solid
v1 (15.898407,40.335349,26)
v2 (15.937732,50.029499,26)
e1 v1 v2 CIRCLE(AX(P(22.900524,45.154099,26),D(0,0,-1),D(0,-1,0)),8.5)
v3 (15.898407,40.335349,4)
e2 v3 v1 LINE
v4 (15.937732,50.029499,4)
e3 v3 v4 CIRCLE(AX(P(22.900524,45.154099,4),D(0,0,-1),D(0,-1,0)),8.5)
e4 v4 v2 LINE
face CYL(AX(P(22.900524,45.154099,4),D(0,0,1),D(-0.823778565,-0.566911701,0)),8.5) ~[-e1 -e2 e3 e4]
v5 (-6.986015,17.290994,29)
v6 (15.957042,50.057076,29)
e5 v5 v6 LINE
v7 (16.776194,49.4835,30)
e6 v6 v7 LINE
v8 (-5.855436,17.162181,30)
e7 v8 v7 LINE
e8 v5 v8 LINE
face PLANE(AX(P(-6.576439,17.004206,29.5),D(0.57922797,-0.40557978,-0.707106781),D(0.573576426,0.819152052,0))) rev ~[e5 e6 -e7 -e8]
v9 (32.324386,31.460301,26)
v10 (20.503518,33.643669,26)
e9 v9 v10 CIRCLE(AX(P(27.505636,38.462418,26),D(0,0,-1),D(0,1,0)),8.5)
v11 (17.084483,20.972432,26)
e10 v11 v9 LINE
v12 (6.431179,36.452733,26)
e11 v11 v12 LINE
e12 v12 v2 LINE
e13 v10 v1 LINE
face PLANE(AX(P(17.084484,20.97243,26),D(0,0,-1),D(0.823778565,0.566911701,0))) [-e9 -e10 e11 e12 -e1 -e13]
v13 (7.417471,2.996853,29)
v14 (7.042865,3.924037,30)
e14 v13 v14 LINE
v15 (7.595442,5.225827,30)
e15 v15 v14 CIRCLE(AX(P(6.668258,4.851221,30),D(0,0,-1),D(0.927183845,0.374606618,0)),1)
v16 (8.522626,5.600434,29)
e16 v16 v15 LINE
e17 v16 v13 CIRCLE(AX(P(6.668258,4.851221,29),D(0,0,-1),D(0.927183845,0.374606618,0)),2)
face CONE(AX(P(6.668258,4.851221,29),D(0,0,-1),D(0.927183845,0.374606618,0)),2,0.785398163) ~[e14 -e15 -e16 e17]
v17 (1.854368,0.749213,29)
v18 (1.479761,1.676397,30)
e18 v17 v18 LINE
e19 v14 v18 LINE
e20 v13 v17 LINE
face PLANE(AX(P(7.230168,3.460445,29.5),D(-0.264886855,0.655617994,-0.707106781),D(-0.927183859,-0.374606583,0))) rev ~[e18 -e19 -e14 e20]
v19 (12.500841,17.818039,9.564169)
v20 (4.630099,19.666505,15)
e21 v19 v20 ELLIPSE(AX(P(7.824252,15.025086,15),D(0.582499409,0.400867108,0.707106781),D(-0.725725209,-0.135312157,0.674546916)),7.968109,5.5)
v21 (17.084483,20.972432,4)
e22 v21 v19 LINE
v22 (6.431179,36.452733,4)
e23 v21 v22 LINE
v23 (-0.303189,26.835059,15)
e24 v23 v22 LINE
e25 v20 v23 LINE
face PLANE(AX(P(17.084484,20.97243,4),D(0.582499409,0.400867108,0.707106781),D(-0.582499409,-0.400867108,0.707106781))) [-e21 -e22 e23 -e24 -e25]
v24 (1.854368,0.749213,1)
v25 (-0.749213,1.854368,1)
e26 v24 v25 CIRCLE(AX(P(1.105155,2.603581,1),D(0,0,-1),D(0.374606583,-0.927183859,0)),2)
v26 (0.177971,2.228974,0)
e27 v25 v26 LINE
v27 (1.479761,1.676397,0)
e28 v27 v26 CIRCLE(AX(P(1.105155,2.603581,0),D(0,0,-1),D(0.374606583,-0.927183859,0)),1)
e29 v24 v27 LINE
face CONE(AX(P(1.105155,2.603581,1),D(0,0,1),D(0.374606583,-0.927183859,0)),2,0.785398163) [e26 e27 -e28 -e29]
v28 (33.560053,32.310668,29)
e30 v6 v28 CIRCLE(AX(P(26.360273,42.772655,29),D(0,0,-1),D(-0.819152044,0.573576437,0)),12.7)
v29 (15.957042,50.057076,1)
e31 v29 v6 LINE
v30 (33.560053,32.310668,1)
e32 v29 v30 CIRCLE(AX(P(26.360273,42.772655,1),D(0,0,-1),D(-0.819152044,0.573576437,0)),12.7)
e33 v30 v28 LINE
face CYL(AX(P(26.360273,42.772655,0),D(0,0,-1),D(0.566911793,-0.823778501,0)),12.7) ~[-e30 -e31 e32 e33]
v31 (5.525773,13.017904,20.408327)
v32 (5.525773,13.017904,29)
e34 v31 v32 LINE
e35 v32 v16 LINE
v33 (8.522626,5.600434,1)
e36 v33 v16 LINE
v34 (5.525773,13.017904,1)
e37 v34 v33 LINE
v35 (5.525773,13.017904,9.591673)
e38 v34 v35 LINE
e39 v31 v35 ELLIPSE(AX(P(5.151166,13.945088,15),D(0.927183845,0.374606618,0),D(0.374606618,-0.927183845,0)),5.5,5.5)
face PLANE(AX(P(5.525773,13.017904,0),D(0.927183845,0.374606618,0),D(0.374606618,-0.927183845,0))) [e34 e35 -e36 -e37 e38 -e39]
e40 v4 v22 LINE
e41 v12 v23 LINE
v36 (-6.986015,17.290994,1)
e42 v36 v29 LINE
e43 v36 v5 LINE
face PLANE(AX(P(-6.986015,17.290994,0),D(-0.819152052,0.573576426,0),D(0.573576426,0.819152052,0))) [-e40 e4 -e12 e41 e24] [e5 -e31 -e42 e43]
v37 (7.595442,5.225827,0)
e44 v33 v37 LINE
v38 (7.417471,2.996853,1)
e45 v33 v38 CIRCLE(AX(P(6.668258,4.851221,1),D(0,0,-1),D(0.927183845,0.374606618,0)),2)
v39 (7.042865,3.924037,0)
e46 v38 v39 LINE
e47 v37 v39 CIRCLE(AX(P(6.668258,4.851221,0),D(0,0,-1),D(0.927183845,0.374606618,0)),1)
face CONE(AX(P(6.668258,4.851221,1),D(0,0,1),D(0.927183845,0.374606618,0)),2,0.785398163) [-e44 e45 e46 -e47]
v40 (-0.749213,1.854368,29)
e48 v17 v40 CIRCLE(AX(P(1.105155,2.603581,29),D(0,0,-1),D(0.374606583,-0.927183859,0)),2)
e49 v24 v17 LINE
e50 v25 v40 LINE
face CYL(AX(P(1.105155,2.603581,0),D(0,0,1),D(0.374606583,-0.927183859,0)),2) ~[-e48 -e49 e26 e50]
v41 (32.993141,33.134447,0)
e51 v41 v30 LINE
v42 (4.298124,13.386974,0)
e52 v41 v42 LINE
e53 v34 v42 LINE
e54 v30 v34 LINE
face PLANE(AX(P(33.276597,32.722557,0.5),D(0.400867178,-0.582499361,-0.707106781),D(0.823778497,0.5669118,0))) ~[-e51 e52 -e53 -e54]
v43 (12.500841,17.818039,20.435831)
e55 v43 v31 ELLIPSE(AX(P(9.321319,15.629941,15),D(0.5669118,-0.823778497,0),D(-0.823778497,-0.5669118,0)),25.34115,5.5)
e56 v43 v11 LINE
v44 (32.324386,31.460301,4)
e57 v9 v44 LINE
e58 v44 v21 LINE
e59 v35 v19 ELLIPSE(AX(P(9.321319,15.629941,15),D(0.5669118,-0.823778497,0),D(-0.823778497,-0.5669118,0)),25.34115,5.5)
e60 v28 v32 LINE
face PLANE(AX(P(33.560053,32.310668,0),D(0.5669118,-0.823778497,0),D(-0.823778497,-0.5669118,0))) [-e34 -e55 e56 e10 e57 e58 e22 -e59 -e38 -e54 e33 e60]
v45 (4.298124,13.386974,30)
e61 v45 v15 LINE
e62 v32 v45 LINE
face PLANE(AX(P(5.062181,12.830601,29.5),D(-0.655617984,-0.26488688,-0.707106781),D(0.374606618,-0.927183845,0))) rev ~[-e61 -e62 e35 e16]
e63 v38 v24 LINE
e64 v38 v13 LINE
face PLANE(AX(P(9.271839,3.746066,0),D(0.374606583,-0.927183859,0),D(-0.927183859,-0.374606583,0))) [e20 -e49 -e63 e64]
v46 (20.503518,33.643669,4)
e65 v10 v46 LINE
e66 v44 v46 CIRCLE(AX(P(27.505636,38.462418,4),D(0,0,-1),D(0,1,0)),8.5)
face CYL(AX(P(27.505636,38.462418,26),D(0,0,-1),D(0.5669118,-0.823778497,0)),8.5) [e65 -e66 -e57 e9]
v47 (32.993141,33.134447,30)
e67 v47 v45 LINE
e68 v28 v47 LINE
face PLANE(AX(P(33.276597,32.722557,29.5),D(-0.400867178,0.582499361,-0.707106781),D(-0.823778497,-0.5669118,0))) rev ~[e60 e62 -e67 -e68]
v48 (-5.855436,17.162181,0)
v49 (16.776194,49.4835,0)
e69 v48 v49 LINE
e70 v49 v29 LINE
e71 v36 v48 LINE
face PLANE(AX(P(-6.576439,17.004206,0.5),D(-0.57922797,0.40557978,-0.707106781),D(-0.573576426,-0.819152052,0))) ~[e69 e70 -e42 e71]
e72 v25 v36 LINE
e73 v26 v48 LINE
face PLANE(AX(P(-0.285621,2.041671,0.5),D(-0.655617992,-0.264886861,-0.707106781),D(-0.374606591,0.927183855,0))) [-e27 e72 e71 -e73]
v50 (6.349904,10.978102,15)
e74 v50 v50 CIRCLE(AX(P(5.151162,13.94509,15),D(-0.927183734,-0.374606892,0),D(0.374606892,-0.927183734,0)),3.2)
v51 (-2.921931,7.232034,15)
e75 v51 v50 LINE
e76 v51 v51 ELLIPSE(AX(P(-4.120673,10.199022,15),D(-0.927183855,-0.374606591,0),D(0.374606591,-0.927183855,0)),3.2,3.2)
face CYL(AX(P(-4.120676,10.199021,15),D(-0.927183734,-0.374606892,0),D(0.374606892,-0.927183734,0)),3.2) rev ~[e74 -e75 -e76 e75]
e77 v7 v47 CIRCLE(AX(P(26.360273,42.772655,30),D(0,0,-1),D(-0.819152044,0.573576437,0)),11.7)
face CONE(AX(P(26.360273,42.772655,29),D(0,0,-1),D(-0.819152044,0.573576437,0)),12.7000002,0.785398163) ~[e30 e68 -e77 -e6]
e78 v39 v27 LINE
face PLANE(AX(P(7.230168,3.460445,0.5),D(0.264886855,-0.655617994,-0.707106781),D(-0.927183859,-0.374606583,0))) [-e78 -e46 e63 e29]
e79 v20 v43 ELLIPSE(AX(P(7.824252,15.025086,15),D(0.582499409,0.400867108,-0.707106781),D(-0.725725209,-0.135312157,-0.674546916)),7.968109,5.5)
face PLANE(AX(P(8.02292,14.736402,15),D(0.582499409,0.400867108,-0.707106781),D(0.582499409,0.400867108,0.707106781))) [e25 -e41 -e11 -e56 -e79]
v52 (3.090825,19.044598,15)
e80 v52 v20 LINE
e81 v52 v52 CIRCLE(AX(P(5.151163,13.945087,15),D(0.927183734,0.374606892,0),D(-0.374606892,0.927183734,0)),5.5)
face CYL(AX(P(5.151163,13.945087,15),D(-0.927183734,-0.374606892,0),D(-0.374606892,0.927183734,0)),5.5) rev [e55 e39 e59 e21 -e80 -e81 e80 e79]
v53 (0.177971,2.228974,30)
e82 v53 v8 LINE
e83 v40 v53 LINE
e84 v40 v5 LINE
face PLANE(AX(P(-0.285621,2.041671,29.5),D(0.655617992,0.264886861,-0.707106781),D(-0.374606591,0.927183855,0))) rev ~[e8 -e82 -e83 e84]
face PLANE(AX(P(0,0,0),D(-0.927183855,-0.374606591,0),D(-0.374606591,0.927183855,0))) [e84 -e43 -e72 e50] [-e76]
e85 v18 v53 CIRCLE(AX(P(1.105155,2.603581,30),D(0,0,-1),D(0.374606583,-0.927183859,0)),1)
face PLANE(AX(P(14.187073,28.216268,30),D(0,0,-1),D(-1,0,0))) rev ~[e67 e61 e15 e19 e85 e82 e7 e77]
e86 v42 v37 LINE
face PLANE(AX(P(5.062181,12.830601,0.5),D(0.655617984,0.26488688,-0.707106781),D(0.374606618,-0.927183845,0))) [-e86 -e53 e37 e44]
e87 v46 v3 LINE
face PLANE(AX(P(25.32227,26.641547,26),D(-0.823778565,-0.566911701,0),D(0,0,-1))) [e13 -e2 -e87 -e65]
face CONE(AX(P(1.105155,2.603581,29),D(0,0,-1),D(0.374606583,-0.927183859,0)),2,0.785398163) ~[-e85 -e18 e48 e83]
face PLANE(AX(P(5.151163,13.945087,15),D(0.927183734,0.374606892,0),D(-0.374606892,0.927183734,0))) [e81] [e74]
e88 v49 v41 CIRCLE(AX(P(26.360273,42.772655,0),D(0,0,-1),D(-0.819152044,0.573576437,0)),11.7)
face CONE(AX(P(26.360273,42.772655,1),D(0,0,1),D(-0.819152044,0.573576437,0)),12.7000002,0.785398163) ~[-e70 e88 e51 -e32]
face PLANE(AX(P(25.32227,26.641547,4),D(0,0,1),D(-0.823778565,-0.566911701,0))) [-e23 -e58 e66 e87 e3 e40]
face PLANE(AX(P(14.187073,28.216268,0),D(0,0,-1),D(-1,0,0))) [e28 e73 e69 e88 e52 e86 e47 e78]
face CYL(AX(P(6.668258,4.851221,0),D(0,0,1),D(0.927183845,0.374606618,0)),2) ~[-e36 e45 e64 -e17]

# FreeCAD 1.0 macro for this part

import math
import FreeCAD as App
import Part
import Sketcher
from FreeCAD import Vector
Q = App.Units.Quantity


def edges_at(feature, points):
    """Names of the edges that pass closest to the given points."""
    edges = feature.Shape.Edges
    near = lambda p: min(range(len(edges)), key=lambda i: edges[i].distToShape(Part.Vertex(*p))[0])
    return sorted({f"Edge{near(p) + 1}" for p in points})

doc = App.newDocument("Part")
body = doc.addObject("PartDesign::Body", "Body")

# Sketch on XY plane
sketch1 = body.newObject("Sketcher::SketchObject", "Sketch")
sketch1.AttachmentSupport = (doc.getObject("XY_Plane"), [""])
sketch1.MapMode = "FlatFace"
sketch1.addGeometry([
    Part.LineSegment(Vector(5.525773, 13.017904, 0), Vector(33.560053, 32.310668, 0)),  # 0
    Part.ArcOfCircle(Part.Circle(Vector(26.360273, 42.772655, 0), Vector(0, 0, 1), 12.7), math.radians(-55.464845), math.radians(145)),  # 1
    Part.LineSegment(Vector(15.957042, 50.057076, 0), Vector(-6.986015, 17.290994, 0)),  # 2
    Part.LineSegment(Vector(-6.986015, 17.290994, 0), Vector(0, 0, 0)),  # 3
    Part.LineSegment(Vector(0, 0, 0), Vector(9.271839, 3.746066, 0)),  # 4
    Part.LineSegment(Vector(9.271839, 3.746066, 0), Vector(5.525773, 13.017904, 0)),  # 5
], False)
sketch1.addConstraint([
    Sketcher.Constraint("Tangent", 0, 2, 1, 1),
    Sketcher.Constraint("Tangent", 1, 2, 2, 1),
    Sketcher.Constraint("Coincident", 2, 2, 3, 1),
    Sketcher.Constraint("Coincident", 3, 2, 4, 1),
    Sketcher.Constraint("Coincident", 4, 2, 5, 1),
    Sketcher.Constraint("Coincident", 5, 2, 0, 1),
    Sketcher.Constraint("Coincident", 3, 2, -1, 1),
    Sketcher.Constraint("Perpendicular", 3, 4),
    Sketcher.Constraint("Perpendicular", 4, 5),
    Sketcher.Constraint("Equal", 4, 5),
    Sketcher.Constraint("Radius", 1, Q("12.7 mm")),
    Sketcher.Constraint("Angle", 2, Q("-124.999999 deg")),
    Sketcher.Constraint("Angle", 3, Q("-68 deg")),
    Sketcher.Constraint("Distance", 2, Q("40 mm")),
    Sketcher.Constraint("Distance", 4, Q("10 mm")),
    Sketcher.Constraint("DistanceX", 5, 2, 1, 3, Q("20.8345 mm")),
])
pad1 = body.newObject("PartDesign::Pad", "Pad")
pad1.Profile = sketch1
pad1.Length = 30

# Sketch on an angled plane
sketch2 = body.newObject("Sketcher::SketchObject", "Sketch001")
sketch2.Placement = App.Placement(Vector(-4.303566, 6.253504, 0), App.Rotation(Vector(0.823778565, 0.566911701, 0), Vector(0, 0, 1.000000001), Vector(0.566911701, -0.823778565, 0), "ZXY"))
sketch2.addGeometry([
    Part.LineSegment(Vector(14.963349, 15, 0), Vector(25.963349, 4, 0)),  # 0
    Part.LineSegment(Vector(25.963349, 4, 0), Vector(35.963349, 4, 0)),  # 1
    Part.LineSegment(Vector(35.963349, 4, 0), Vector(35.963349, 26, 0)),  # 2
    Part.LineSegment(Vector(35.963349, 26, 0), Vector(25.963349, 26, 0)),  # 3
    Part.LineSegment(Vector(25.963349, 26, 0), Vector(14.963349, 15, 0)),  # 4
], False)
sketch2.addConstraint([
    Sketcher.Constraint("Coincident", 0, 2, 1, 1),
    Sketcher.Constraint("Coincident", 1, 2, 2, 1),
    Sketcher.Constraint("Coincident", 2, 2, 3, 1),
    Sketcher.Constraint("Coincident", 3, 2, 4, 1),
    Sketcher.Constraint("Coincident", 4, 2, 0, 1),
    Sketcher.Constraint("Horizontal", 1),
    Sketcher.Constraint("Vertical", 2),
    Sketcher.Constraint("Horizontal", 3),
    Sketcher.Constraint("Perpendicular", 0, 4),
    Sketcher.Constraint("Vertical", 0, 2, 3, 2),
    Sketcher.Constraint("Equal", 0, 4),
    Sketcher.Constraint("DistanceX", 1, 1, 1, 2, Q("10 mm")),
    Sketcher.Constraint("DistanceY", 2, 1, 2, 2, Q("22 mm")),
    Sketcher.Constraint("DistanceY", -1, 1, 0, 2, Q("4 mm")),
    Sketcher.Constraint("DistanceX", -1, 1, 0, 2, Q("25.963349 mm")),
])
pocket1 = body.newObject("PartDesign::Pocket", "Pocket")
pocket1.Profile = sketch2
pocket1.Type = "ThroughAll"
doc.recompute()

fillet = body.newObject("PartDesign::Fillet", "Fillet")
fillet.Base = (pocket1, edges_at(pocket1, [(12.553, 45.196, 15), (25.322, 26.642, 15)]))
fillet.Radius = 8.5

# Sketch on an angled plane
sketch3 = body.newObject("Sketcher::SketchObject", "Sketch002")
sketch3.Placement = App.Placement(Vector(0, 0, 0), App.Rotation(Vector(0.374606892, -0.927183734, 0), Vector(0, 0, 1), Vector(-0.927183734, -0.374606892, 0), "ZXY"))
sketch3.addGeometry(Part.Circle(Vector(-11, 15, 0), Vector(0, 0, 1), 3.2), False)
sketch3.addConstraint([
    Sketcher.Constraint("Diameter", 0, Q("6.4 mm")),
    Sketcher.Constraint("DistanceX", 0, 3, -1, 1, Q("11 mm")),
    Sketcher.Constraint("DistanceY", -1, 1, 0, 3, Q("15 mm")),
])
pocket2 = body.newObject("PartDesign::Pocket", "Pocket001")
pocket2.Profile = sketch3
pocket2.Type = "ThroughAll"

# Sketch on an angled plane
sketch4 = body.newObject("Sketcher::SketchObject", "Sketch003")
sketch4.Placement = App.Placement(Vector(9.271839, 3.746066, 0), App.Rotation(Vector(-0.374606892, 0.927183734, 0), Vector(0, 0, 1), Vector(0.927183734, 0.374606892, 0), "ZXY"))
sketch4.addGeometry(Part.Circle(Vector(11, 15, 0), Vector(0, 0, 1), 5.5), False)
sketch4.addConstraint([
    Sketcher.Constraint("Diameter", 0, Q("11 mm")),
    Sketcher.Constraint("DistanceX", -1, 1, 0, 3, Q("11 mm")),
    Sketcher.Constraint("DistanceY", -1, 1, 0, 3, Q("15 mm")),
])
pocket3 = body.newObject("PartDesign::Pocket", "Pocket002")
pocket3.Profile = sketch4
pocket3.Type = "ThroughAll"
pocket3.Reversed = True
doc.recompute()

fillet2 = body.newObject("PartDesign::Fillet", "Fillet001")
fillet2.Base = (pocket3, edges_at(pocket3, [(9.272, 3.746, 15), (0, 0, 15)]))
fillet2.Radius = 2
doc.recompute()

chamfer = body.newObject("PartDesign::Chamfer", "Chamfer")
chamfer.Base = (fillet2, edges_at(fillet2, [
    (7.024, 9.309, 0),
    (8.509, 4.07, 0),
    (19.543, 22.664, 0),
    (4.636, 1.873, 0),
    (35.377, 51.716, 0),
    (0.324, 0.763, 0),
    (4.486, 33.674, 0),
    (-3.868, 9.573, 0),
    (7.024, 9.309, 30),
    (8.509, 4.07, 30),
    (19.543, 22.664, 30),
    (4.636, 1.873, 30),
    (35.377, 51.716, 30),
    (0.324, 0.763, 30),
    (4.486, 33.674, 30),
    (-3.868, 9.573, 30),
]))
chamfer.Size = 1

doc.recompute()
